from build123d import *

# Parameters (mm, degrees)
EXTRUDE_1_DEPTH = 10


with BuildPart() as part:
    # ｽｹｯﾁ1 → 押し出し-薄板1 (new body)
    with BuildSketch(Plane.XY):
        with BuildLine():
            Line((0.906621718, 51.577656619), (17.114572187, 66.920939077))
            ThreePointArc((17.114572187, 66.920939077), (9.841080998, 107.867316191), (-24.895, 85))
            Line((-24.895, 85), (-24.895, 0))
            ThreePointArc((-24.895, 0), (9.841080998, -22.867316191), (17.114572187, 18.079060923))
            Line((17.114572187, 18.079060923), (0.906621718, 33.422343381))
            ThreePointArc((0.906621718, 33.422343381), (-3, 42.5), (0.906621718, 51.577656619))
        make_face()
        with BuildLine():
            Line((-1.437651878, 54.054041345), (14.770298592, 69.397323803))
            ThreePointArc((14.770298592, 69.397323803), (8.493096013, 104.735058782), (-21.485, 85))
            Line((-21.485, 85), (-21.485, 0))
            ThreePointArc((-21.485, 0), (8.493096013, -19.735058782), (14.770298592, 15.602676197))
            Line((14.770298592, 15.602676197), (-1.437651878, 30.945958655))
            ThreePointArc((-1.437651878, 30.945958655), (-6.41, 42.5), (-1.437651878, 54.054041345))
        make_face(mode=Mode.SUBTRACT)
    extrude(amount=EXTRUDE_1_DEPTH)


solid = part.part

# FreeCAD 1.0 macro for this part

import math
import FreeCAD as App
import Part
import Sketcher
from FreeCAD import Vector

doc = App.newDocument("Part")
body = doc.addObject("PartDesign::Body", "Body")

# Sketch on XY plane
sketch1 = body.newObject("Sketcher::SketchObject", "Sketch")
sketch1.AttachmentSupport = (doc.getObject("XY_Plane"), [""])
sketch1.MapMode = "FlatFace"
sketch1.addGeometry(Part.LineSegment(Vector(0.906622, 51.577657, 0), Vector(17.114572, 66.920939, 0)), False)
sketch1.addGeometry(Part.ArcOfCircle(Part.Circle(Vector(0, 85, 0), Vector(0, 0, 1), 24.895), math.radians(-46.56981), math.radians(180)), False)
sketch1.addGeometry(Part.LineSegment(Vector(-24.895, 85, 0), Vector(-24.895, 0, 0)), False)
sketch1.addGeometry(Part.ArcOfCircle(Part.Circle(Vector(0, 0, 0), Vector(0, 0, 1), 24.895), math.radians(180), math.radians(406.56981)), False)
sketch1.addGeometry(Part.LineSegment(Vector(17.114572, 18.079061, 0), Vector(0.906622, 33.422343, 0)), False)
sketch1.addGeometry(Part.ArcOfCircle(Part.Circle(Vector(9.5, 42.5, 0), Vector(0, 0, 1), 12.5), math.radians(133.43019), math.radians(226.56981)), False)
sketch1.addGeometry(Part.LineSegment(Vector(14.770299, 69.397324, 0), Vector(-1.437652, 54.054041, 0)), False)
sketch1.addGeometry(Part.ArcOfCircle(Part.Circle(Vector(9.5, 42.5, 0), Vector(0, 0, 1), 15.91), math.radians(133.43019), math.radians(226.56981)), False)
sketch1.addGeometry(Part.LineSegment(Vector(-1.437652, 30.945959, 0), Vector(14.770299, 15.602676, 0)), False)
sketch1.addGeometry(Part.ArcOfCircle(Part.Circle(Vector(0, 0, 0), Vector(0, 0, 1), 21.485), math.radians(180), math.radians(406.56981)), False)
sketch1.addGeometry(Part.LineSegment(Vector(-21.485, 0, 0), Vector(-21.485, 85, 0)), False)
sketch1.addGeometry(Part.ArcOfCircle(Part.Circle(Vector(0, 85, 0), Vector(0, 0, 1), 21.485), math.radians(-46.56981), math.radians(180)), False)
sketch1.addConstraint(Sketcher.Constraint("Tangent", 0, 2, 1, 1))
sketch1.addConstraint(Sketcher.Constraint("Tangent", 1, 2, 2, 1))
sketch1.addConstraint(Sketcher.Constraint("Tangent", 2, 2, 3, 1))
sketch1.addConstraint(Sketcher.Constraint("Tangent", 3, 2, 4, 1))
sketch1.addConstraint(Sketcher.Constraint("Tangent", 4, 2, 5, 2))
sketch1.addConstraint(Sketcher.Constraint("Tangent", 5, 1, 0, 1))
sketch1.addConstraint(Sketcher.Constraint("Tangent", 6, 2, 7, 1))
sketch1.addConstraint(Sketcher.Constraint("Tangent", 7, 2, 8, 1))
sketch1.addConstraint(Sketcher.Constraint("Tangent", 8, 2, 9, 2))
sketch1.addConstraint(Sketcher.Constraint("Tangent", 9, 1, 10, 1))
sketch1.addConstraint(Sketcher.Constraint("Tangent", 10, 2, 11, 2))
sketch1.addConstraint(Sketcher.Constraint("Tangent", 11, 1, 6, 1))
sketch1.addConstraint(Sketcher.Constraint("Vertical", 2))
sketch1.addConstraint(Sketcher.Constraint("Vertical", 10))
sketch1.addConstraint(Sketcher.Constraint("Coincident", 3, 3, -1, 1))
sketch1.addConstraint(Sketcher.Constraint("Coincident", 9, 3, -1, 1))
sketch1.addConstraint(Sketcher.Constraint("Coincident", 7, 3, 5, 3))
sketch1.addConstraint(Sketcher.Constraint("Coincident", 11, 3, 1, 3))
sketch1.addConstraint(Sketcher.Constraint("Equal", 1, 3))
sketch1.addConstraint(Sketcher.Constraint("Parallel", 0, 6))
sketch1.addConstraint(Sketcher.Constraint("Vertical", 0, 2, 3, 2))
sketch1.addConstraint(Sketcher.Constraint("Radius", 5, 12.5))
sketch1.addConstraint(Sketcher.Constraint("DistanceY", 2, 2, 2, 1, 85.0))
sketch1.addConstraint(Sketcher.Constraint("Radius", 7, 15.91))
sketch1.addConstraint(Sketcher.Constraint("Radius", 1, 24.895))
sketch1.addConstraint(Sketcher.Constraint("DistanceX", -1, 1, 5, 3, 9.5))
pad1 = body.newObject("PartDesign::Pad", "Pad")
pad1.Profile = sketch1
pad1.Length = 10

doc.recompute()
